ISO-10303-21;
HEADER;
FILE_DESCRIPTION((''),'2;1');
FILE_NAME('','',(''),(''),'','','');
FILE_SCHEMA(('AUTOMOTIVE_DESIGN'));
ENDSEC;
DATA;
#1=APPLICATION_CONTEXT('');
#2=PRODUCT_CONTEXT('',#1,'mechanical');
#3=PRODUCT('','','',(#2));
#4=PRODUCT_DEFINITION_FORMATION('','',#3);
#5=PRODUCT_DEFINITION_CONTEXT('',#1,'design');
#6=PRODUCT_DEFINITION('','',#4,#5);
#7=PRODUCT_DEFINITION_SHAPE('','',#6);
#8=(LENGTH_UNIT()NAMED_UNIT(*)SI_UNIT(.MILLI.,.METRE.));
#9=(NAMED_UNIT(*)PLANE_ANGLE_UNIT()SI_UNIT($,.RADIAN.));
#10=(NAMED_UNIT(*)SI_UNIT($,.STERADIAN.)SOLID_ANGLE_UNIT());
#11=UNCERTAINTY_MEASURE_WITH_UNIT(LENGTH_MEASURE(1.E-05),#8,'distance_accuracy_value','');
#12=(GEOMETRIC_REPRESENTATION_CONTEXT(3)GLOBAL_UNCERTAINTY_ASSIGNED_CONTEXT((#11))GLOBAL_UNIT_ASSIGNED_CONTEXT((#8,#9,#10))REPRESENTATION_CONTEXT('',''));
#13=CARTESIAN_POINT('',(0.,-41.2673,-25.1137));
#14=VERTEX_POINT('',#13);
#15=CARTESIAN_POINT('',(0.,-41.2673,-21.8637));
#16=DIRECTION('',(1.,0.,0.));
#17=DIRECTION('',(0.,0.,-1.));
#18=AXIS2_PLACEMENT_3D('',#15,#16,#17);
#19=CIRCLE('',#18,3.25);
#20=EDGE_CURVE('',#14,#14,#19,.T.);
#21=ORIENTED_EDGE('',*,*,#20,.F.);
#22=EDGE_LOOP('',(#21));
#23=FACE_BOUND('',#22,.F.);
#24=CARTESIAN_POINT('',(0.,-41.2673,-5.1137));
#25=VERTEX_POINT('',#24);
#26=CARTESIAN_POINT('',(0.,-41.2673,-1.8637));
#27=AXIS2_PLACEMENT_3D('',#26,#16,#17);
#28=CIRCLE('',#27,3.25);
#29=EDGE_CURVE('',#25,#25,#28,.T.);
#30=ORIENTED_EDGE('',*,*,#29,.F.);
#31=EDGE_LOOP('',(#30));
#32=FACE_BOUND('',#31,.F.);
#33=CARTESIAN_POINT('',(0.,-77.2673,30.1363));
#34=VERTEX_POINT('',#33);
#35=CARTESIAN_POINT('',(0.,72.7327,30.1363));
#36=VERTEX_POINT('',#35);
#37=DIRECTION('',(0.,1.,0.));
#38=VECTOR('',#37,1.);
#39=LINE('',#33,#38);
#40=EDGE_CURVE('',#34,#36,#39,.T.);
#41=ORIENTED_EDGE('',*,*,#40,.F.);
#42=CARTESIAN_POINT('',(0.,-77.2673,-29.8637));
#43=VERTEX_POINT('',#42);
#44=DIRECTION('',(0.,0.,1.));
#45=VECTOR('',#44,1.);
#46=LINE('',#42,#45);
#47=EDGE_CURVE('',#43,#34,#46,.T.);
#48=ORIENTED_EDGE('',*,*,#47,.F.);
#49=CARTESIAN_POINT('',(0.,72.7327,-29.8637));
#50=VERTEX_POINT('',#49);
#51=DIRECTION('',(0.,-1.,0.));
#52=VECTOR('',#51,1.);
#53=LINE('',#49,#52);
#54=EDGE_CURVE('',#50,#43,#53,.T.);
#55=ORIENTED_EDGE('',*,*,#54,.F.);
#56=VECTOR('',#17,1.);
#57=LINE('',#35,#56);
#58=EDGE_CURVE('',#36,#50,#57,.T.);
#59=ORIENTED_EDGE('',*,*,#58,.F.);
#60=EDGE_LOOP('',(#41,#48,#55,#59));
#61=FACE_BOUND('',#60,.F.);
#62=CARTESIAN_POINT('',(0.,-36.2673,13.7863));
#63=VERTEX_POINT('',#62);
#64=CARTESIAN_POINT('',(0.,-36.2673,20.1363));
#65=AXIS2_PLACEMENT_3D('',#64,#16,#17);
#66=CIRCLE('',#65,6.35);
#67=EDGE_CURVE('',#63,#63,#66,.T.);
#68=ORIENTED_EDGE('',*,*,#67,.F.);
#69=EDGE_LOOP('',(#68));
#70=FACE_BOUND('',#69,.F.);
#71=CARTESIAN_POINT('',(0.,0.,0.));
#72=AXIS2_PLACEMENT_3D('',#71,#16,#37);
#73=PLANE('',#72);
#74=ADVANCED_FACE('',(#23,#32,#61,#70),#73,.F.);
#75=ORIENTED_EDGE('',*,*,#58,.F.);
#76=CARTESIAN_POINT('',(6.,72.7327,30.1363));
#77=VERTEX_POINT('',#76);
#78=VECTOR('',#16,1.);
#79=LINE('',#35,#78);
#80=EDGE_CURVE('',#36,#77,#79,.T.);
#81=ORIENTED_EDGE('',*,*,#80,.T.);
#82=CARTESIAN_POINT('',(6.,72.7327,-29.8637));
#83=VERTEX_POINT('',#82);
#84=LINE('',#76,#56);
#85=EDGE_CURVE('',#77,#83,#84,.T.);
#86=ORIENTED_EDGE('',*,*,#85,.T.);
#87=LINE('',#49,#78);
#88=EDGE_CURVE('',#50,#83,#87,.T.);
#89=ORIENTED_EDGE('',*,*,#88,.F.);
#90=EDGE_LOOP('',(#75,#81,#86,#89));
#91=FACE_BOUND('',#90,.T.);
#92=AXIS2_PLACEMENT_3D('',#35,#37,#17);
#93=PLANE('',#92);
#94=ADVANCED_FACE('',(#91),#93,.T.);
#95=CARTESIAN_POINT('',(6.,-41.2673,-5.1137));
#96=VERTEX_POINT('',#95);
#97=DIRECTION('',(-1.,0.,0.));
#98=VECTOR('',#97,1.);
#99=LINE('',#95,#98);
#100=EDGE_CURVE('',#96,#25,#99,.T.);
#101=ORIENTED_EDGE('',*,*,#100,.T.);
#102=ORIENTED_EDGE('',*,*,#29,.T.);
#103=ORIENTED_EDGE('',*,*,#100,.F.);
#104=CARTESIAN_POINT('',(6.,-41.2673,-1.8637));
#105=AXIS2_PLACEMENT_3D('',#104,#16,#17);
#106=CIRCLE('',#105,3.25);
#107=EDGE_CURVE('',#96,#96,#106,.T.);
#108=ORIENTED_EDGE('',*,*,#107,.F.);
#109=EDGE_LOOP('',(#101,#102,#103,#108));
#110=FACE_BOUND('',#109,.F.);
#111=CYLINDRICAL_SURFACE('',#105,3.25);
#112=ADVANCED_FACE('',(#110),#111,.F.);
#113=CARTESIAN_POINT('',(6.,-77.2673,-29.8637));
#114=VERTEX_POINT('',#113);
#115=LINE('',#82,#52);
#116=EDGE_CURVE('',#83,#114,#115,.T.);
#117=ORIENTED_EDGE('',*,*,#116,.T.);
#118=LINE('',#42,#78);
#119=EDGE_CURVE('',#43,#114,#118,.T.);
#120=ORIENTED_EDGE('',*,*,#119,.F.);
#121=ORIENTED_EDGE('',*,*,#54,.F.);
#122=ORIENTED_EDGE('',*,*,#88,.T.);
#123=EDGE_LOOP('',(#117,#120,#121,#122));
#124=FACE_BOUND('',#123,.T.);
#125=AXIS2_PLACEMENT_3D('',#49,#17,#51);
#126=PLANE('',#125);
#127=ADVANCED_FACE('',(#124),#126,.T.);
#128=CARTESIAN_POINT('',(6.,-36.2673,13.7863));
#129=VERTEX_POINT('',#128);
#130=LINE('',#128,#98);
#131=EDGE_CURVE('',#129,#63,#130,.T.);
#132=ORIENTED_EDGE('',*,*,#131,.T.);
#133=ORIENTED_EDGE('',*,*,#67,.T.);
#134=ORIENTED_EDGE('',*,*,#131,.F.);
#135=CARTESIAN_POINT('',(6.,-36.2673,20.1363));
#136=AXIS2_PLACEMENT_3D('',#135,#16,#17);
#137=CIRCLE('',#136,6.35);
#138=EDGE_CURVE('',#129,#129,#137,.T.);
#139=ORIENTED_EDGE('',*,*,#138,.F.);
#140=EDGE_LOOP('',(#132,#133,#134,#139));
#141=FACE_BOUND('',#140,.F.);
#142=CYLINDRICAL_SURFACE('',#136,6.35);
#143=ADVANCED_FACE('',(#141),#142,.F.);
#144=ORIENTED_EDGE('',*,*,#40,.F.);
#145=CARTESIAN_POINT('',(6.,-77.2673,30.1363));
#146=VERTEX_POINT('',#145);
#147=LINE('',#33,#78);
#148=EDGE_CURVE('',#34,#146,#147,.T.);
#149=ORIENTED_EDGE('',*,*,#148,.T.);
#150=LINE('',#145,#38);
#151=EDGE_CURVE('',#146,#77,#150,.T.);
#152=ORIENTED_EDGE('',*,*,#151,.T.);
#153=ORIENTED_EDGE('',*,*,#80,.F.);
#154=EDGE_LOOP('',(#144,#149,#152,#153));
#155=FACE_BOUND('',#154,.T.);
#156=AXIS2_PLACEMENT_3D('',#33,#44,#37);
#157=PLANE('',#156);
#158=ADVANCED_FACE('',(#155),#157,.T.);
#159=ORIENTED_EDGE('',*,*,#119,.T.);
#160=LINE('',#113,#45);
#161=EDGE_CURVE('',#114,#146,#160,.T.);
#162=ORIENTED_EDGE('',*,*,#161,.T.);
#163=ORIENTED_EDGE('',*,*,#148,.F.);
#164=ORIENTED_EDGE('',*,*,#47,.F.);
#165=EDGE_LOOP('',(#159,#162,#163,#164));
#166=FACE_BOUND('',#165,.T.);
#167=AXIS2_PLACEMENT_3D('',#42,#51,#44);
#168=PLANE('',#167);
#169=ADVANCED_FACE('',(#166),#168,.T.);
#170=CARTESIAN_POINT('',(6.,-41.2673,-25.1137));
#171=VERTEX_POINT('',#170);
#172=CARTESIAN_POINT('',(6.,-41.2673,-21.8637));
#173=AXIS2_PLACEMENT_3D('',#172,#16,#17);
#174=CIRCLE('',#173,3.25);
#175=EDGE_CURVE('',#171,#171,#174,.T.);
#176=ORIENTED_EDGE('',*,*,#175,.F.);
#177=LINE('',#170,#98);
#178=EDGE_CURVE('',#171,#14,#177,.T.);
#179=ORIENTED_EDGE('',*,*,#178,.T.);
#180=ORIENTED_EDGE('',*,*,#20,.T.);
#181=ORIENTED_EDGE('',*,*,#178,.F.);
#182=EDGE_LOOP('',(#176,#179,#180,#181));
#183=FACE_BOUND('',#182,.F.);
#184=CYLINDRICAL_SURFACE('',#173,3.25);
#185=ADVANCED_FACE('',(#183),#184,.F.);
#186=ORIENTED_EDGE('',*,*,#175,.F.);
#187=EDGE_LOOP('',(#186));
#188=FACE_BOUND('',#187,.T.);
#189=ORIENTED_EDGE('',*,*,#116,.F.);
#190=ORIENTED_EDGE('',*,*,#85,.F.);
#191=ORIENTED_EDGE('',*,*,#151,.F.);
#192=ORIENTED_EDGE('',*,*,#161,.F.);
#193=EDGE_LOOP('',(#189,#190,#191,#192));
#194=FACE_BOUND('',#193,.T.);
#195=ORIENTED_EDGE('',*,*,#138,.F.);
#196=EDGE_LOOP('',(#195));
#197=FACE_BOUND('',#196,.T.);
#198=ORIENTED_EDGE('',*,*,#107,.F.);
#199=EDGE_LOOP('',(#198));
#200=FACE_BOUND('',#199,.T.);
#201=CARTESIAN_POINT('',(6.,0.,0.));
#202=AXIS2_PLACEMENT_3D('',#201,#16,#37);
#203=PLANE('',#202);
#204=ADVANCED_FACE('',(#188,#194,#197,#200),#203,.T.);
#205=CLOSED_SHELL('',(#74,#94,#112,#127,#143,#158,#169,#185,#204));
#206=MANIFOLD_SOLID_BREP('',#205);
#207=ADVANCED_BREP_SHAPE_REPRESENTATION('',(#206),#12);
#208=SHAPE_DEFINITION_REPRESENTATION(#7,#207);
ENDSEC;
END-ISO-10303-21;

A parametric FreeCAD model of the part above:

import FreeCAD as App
import Part
import Sketcher
from FreeCAD import Vector
Q = App.Units.Quantity


def add_polygon(sketch, points):
    """Adds a closed chain of lines whose ends are joined by coincident constraints."""
    first, n = sketch.GeometryCount, len(points)
    for a, b in zip(points, points[1:] + points[:1]):
        sketch.addGeometry(Part.LineSegment(App.Vector(*a, 0), App.Vector(*b, 0)), False)
    for i in range(n):
        sketch.addConstraint(Sketcher.Constraint("Coincident", first + i, 2, first + (i + 1) % n, 1))

doc = App.newDocument("Part")
body = doc.addObject("PartDesign::Body", "Body")

sketch1 = body.newObject("Sketcher::SketchObject", "Sketch")
sketch1.AttachmentSupport = (doc.getObject("YZ_Plane"), [""])
sketch1.MapMode = "FlatFace"
add_polygon(sketch1, [(-77, -30), (73, -30), (73, 30), (-77, 30)])
sketch1.addConstraint([
    Sketcher.Constraint("Horizontal", 0),
    Sketcher.Constraint("Vertical", 1),
    Sketcher.Constraint("Horizontal", 2),
    Sketcher.Constraint("Vertical", 3),
    Sketcher.Constraint("DistanceX", 0, 1, 0, 2, Q("150 mm")),
    Sketcher.Constraint("DistanceY", 1, 1, 1, 2, Q("60 mm")),
    Sketcher.Constraint("DistanceX", -1, 1, 0, 2, Q("72.7327 mm")),
    Sketcher.Constraint("DistanceY", 0, 2, -1, 1, Q("29.8637 mm")),
])
pad1 = body.newObject("PartDesign::Pad", "Pad")
pad1.Profile = sketch1
pad1.Length = 6

sketch2 = body.newObject("Sketcher::SketchObject", "Sketch001")
sketch2.AttachmentSupport = (doc.getObject("YZ_Plane"), [""])
sketch2.MapMode = "FlatFace"
sketch2.AttachmentOffset = App.Placement(Vector(0, 0, 6), App.Rotation())
sketch2.addGeometry([
    Part.Circle(Vector(-41.3, -21.9, 0), Vector(0, 0, 1), 3.2),
    Part.Circle(Vector(-41.3, -1.9, 0), Vector(0, 0, 1), 3.2),
    Part.Circle(Vector(-36.3, 20.1, 0), Vector(0, 0, 1), 6.3),
], False)
sketch2.addConstraint([
    Sketcher.Constraint("Equal", 0, 1),
    Sketcher.Constraint("Vertical", 0, 3, 1, 3),
    Sketcher.Constraint("Diameter", 0, Q("6.5 mm")),
    Sketcher.Constraint("Diameter", 2, Q("12.7 mm")),
    Sketcher.Constraint("DistanceY", 0, 3, 1, 3, Q("20 mm")),
    Sketcher.Constraint("DistanceX", 1, 3, 2, 3, Q("5 mm")),
    Sketcher.Constraint("DistanceY", 1, 3, 2, 3, Q("22 mm")),
    Sketcher.Constraint("DistanceX", 0, 3, -1, 1, Q("41.2673 mm")),
    Sketcher.Constraint("DistanceY", 0, 3, -1, 1, Q("21.8637 mm")),
])
pocket1 = body.newObject("PartDesign::Pocket", "Pocket")
pocket1.Profile = sketch2
pocket1.Length = 6

doc.recompute()
